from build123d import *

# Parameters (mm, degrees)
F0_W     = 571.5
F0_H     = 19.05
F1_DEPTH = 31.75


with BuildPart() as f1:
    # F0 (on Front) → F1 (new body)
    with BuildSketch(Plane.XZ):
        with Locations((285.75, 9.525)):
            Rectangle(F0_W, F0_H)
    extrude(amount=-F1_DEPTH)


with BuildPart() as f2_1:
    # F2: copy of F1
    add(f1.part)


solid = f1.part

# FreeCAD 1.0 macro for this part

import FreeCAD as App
import Part
import Sketcher
from FreeCAD import Vector
Q = App.Units.Quantity

doc = App.newDocument("Part")
body = doc.addObject("PartDesign::Body", "Body")

# Sketch on XZ plane
sketch1 = body.newObject("Sketcher::SketchObject", "Sketch")
sketch1.AttachmentSupport = (doc.getObject("XZ_Plane"), [""])
sketch1.MapMode = "FlatFace"
sketch1.addGeometry(Part.LineSegment(Vector(0, 19.05, 0), Vector(0, 0, 0)), False)
sketch1.addGeometry(Part.LineSegment(Vector(0, 0, 0), Vector(571.5, 0, 0)), False)
sketch1.addGeometry(Part.LineSegment(Vector(571.5, 0, 0), Vector(571.5, 19.05, 0)), False)
sketch1.addGeometry(Part.LineSegment(Vector(571.5, 19.05, 0), Vector(0, 19.05, 0)), False)
sketch1.addConstraint(Sketcher.Constraint("Coincident", 0, 2, 1, 1))
sketch1.addConstraint(Sketcher.Constraint("Coincident", 1, 2, 2, 1))
sketch1.addConstraint(Sketcher.Constraint("Coincident", 2, 2, 3, 1))
sketch1.addConstraint(Sketcher.Constraint("Coincident", 3, 2, 0, 1))
sketch1.addConstraint(Sketcher.Constraint("Vertical", 0))
sketch1.addConstraint(Sketcher.Constraint("Horizontal", 1))
sketch1.addConstraint(Sketcher.Constraint("Vertical", 2))
sketch1.addConstraint(Sketcher.Constraint("Horizontal", 3))
sketch1.addConstraint(Sketcher.Constraint("Coincident", 0, 2, -1, 1))
sketch1.addConstraint(Sketcher.Constraint("DistanceX", 1, 1, 1, 2, Q("22.5 in")))
sketch1.addConstraint(Sketcher.Constraint("DistanceY", 0, 2, 0, 1, Q("0.75 in")))
pad1 = body.newObject("PartDesign::Pad", "Pad")
pad1.Profile = sketch1
pad1.Length = Q("1.25 in")
pad1.Reversed = True
body2 = doc.addObject("PartDesign::Body", "Body001")
doc.recompute()

body2.BaseFeature = body
doc.recompute()
body.Visibility = False

doc.recompute()
